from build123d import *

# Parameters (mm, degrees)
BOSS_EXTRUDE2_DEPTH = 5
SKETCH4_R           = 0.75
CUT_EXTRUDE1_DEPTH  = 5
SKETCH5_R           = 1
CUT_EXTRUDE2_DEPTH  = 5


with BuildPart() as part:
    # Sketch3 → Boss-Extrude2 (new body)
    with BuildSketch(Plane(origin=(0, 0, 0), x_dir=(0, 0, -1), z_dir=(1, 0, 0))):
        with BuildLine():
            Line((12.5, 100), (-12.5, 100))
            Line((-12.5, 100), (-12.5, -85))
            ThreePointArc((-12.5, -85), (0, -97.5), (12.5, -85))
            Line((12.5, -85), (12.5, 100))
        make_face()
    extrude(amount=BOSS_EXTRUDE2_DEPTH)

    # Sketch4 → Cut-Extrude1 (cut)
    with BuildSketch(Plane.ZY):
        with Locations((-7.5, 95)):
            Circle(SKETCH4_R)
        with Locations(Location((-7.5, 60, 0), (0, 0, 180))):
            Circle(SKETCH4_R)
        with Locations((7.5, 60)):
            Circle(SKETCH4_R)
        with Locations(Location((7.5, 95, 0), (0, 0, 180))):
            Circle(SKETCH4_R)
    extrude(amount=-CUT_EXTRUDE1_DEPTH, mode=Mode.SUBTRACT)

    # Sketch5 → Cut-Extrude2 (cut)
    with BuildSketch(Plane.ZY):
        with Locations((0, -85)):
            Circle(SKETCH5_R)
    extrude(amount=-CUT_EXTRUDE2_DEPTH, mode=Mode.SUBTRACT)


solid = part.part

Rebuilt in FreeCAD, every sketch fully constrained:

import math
import FreeCAD as App
import Part
import Sketcher

V = App.Vector

doc = App.newDocument("Part")
body = doc.addObject("PartDesign::Body", "Body")

sketch1 = body.newObject("Sketcher::SketchObject", "Sketch")
sketch1.AttachmentSupport = (doc.getObject("YZ_Plane"), [""])
sketch1.MapMode = "FlatFace"
sketch1.addGeometry([
    Part.LineSegment(V(100, -12, 0), V(100, 12, 0)),
    Part.LineSegment(V(100, 12, 0), V(-85, 12, 0)),
    Part.ArcOfCircle(Part.Circle(V(-85, 0, 0), V(0, 0, 1), 12), math.radians(90), math.radians(270)),
    Part.LineSegment(V(-85, -12, 0), V(100, -12, 0)),
], False)
sketch1.addConstraint([
    Sketcher.Constraint("Coincident", 0, 2, 1, 1),
    Sketcher.Constraint("Tangent", 1, 2, 2, 1),
    Sketcher.Constraint("Tangent", 2, 2, 3, 1),
    Sketcher.Constraint("Coincident", 3, 2, 0, 1),
    Sketcher.Constraint("Vertical", 0),
    Sketcher.Constraint("Horizontal", 1),
    Sketcher.Constraint("Horizontal", 3),
    Sketcher.Constraint("PointOnObject", 2, 3, -1),
    Sketcher.Constraint("Radius", 2, 12.5),
    Sketcher.Constraint("DistanceX", 1, 2, 1, 1, 185.0),
    Sketcher.Constraint("DistanceX", 2, 3, -1, 1, 85.0),
])
pad1 = body.newObject("PartDesign::Pad", "Pad")
pad1.Profile = sketch1
pad1.Length = 5

sketch2 = body.newObject("Sketcher::SketchObject", "Sketch001")
sketch2.AttachmentSupport = (doc.getObject("YZ_Plane"), [""])
sketch2.MapMode = "FlatFace"
sketch2.addGeometry([
    Part.Circle(V(95, -7.5, 0), V(0, 0, 1), 0.8),
    Part.Circle(V(60, -7.5, 0), V(0, 0, 1), 0.8),
    Part.Circle(V(60, 7.5, 0), V(0, 0, 1), 0.8),
    Part.Circle(V(95, 7.5, 0), V(0, 0, 1), 0.8),
], False)
sketch2.addConstraint([
    Sketcher.Constraint("Equal", 0, 1),
    Sketcher.Constraint("Equal", 1, 2),
    Sketcher.Constraint("Equal", 2, 3),
    Sketcher.Constraint("Symmetric", 1, 3, 2, 3, -1),
    Sketcher.Constraint("Symmetric", 0, 3, 3, 3, -1),
    Sketcher.Constraint("Horizontal", 0, 3, 1, 3),
    Sketcher.Constraint("Diameter", 0, 1.5),
    Sketcher.Constraint("DistanceX", -1, 1, 0, 3, 95.0),
    Sketcher.Constraint("DistanceX", -1, 1, 1, 3, 60.0),
    Sketcher.Constraint("DistanceY", 1, 3, 2, 3, 15.0),
])
pocket1 = body.newObject("PartDesign::Pocket", "Pocket")
pocket1.Profile = sketch2
pocket1.Length = 5
pocket1.Reversed = True

sketch3 = body.newObject("Sketcher::SketchObject", "Sketch002")
sketch3.AttachmentSupport = (doc.getObject("YZ_Plane"), [""])
sketch3.MapMode = "FlatFace"
sketch3.addGeometry(Part.Circle(V(-85, 0, 0), V(0, 0, 1), 1), False)
sketch3.addConstraint([
    Sketcher.Constraint("PointOnObject", 0, 3, -1),
    Sketcher.Constraint("Diameter", 0, 2.0),
    Sketcher.Constraint("DistanceX", 0, 3, -1, 1, 85.0),
])
pocket2 = body.newObject("PartDesign::Pocket", "Pocket001")
pocket2.Profile = sketch3
pocket2.Length = 5
pocket2.Reversed = True

doc.recompute()
